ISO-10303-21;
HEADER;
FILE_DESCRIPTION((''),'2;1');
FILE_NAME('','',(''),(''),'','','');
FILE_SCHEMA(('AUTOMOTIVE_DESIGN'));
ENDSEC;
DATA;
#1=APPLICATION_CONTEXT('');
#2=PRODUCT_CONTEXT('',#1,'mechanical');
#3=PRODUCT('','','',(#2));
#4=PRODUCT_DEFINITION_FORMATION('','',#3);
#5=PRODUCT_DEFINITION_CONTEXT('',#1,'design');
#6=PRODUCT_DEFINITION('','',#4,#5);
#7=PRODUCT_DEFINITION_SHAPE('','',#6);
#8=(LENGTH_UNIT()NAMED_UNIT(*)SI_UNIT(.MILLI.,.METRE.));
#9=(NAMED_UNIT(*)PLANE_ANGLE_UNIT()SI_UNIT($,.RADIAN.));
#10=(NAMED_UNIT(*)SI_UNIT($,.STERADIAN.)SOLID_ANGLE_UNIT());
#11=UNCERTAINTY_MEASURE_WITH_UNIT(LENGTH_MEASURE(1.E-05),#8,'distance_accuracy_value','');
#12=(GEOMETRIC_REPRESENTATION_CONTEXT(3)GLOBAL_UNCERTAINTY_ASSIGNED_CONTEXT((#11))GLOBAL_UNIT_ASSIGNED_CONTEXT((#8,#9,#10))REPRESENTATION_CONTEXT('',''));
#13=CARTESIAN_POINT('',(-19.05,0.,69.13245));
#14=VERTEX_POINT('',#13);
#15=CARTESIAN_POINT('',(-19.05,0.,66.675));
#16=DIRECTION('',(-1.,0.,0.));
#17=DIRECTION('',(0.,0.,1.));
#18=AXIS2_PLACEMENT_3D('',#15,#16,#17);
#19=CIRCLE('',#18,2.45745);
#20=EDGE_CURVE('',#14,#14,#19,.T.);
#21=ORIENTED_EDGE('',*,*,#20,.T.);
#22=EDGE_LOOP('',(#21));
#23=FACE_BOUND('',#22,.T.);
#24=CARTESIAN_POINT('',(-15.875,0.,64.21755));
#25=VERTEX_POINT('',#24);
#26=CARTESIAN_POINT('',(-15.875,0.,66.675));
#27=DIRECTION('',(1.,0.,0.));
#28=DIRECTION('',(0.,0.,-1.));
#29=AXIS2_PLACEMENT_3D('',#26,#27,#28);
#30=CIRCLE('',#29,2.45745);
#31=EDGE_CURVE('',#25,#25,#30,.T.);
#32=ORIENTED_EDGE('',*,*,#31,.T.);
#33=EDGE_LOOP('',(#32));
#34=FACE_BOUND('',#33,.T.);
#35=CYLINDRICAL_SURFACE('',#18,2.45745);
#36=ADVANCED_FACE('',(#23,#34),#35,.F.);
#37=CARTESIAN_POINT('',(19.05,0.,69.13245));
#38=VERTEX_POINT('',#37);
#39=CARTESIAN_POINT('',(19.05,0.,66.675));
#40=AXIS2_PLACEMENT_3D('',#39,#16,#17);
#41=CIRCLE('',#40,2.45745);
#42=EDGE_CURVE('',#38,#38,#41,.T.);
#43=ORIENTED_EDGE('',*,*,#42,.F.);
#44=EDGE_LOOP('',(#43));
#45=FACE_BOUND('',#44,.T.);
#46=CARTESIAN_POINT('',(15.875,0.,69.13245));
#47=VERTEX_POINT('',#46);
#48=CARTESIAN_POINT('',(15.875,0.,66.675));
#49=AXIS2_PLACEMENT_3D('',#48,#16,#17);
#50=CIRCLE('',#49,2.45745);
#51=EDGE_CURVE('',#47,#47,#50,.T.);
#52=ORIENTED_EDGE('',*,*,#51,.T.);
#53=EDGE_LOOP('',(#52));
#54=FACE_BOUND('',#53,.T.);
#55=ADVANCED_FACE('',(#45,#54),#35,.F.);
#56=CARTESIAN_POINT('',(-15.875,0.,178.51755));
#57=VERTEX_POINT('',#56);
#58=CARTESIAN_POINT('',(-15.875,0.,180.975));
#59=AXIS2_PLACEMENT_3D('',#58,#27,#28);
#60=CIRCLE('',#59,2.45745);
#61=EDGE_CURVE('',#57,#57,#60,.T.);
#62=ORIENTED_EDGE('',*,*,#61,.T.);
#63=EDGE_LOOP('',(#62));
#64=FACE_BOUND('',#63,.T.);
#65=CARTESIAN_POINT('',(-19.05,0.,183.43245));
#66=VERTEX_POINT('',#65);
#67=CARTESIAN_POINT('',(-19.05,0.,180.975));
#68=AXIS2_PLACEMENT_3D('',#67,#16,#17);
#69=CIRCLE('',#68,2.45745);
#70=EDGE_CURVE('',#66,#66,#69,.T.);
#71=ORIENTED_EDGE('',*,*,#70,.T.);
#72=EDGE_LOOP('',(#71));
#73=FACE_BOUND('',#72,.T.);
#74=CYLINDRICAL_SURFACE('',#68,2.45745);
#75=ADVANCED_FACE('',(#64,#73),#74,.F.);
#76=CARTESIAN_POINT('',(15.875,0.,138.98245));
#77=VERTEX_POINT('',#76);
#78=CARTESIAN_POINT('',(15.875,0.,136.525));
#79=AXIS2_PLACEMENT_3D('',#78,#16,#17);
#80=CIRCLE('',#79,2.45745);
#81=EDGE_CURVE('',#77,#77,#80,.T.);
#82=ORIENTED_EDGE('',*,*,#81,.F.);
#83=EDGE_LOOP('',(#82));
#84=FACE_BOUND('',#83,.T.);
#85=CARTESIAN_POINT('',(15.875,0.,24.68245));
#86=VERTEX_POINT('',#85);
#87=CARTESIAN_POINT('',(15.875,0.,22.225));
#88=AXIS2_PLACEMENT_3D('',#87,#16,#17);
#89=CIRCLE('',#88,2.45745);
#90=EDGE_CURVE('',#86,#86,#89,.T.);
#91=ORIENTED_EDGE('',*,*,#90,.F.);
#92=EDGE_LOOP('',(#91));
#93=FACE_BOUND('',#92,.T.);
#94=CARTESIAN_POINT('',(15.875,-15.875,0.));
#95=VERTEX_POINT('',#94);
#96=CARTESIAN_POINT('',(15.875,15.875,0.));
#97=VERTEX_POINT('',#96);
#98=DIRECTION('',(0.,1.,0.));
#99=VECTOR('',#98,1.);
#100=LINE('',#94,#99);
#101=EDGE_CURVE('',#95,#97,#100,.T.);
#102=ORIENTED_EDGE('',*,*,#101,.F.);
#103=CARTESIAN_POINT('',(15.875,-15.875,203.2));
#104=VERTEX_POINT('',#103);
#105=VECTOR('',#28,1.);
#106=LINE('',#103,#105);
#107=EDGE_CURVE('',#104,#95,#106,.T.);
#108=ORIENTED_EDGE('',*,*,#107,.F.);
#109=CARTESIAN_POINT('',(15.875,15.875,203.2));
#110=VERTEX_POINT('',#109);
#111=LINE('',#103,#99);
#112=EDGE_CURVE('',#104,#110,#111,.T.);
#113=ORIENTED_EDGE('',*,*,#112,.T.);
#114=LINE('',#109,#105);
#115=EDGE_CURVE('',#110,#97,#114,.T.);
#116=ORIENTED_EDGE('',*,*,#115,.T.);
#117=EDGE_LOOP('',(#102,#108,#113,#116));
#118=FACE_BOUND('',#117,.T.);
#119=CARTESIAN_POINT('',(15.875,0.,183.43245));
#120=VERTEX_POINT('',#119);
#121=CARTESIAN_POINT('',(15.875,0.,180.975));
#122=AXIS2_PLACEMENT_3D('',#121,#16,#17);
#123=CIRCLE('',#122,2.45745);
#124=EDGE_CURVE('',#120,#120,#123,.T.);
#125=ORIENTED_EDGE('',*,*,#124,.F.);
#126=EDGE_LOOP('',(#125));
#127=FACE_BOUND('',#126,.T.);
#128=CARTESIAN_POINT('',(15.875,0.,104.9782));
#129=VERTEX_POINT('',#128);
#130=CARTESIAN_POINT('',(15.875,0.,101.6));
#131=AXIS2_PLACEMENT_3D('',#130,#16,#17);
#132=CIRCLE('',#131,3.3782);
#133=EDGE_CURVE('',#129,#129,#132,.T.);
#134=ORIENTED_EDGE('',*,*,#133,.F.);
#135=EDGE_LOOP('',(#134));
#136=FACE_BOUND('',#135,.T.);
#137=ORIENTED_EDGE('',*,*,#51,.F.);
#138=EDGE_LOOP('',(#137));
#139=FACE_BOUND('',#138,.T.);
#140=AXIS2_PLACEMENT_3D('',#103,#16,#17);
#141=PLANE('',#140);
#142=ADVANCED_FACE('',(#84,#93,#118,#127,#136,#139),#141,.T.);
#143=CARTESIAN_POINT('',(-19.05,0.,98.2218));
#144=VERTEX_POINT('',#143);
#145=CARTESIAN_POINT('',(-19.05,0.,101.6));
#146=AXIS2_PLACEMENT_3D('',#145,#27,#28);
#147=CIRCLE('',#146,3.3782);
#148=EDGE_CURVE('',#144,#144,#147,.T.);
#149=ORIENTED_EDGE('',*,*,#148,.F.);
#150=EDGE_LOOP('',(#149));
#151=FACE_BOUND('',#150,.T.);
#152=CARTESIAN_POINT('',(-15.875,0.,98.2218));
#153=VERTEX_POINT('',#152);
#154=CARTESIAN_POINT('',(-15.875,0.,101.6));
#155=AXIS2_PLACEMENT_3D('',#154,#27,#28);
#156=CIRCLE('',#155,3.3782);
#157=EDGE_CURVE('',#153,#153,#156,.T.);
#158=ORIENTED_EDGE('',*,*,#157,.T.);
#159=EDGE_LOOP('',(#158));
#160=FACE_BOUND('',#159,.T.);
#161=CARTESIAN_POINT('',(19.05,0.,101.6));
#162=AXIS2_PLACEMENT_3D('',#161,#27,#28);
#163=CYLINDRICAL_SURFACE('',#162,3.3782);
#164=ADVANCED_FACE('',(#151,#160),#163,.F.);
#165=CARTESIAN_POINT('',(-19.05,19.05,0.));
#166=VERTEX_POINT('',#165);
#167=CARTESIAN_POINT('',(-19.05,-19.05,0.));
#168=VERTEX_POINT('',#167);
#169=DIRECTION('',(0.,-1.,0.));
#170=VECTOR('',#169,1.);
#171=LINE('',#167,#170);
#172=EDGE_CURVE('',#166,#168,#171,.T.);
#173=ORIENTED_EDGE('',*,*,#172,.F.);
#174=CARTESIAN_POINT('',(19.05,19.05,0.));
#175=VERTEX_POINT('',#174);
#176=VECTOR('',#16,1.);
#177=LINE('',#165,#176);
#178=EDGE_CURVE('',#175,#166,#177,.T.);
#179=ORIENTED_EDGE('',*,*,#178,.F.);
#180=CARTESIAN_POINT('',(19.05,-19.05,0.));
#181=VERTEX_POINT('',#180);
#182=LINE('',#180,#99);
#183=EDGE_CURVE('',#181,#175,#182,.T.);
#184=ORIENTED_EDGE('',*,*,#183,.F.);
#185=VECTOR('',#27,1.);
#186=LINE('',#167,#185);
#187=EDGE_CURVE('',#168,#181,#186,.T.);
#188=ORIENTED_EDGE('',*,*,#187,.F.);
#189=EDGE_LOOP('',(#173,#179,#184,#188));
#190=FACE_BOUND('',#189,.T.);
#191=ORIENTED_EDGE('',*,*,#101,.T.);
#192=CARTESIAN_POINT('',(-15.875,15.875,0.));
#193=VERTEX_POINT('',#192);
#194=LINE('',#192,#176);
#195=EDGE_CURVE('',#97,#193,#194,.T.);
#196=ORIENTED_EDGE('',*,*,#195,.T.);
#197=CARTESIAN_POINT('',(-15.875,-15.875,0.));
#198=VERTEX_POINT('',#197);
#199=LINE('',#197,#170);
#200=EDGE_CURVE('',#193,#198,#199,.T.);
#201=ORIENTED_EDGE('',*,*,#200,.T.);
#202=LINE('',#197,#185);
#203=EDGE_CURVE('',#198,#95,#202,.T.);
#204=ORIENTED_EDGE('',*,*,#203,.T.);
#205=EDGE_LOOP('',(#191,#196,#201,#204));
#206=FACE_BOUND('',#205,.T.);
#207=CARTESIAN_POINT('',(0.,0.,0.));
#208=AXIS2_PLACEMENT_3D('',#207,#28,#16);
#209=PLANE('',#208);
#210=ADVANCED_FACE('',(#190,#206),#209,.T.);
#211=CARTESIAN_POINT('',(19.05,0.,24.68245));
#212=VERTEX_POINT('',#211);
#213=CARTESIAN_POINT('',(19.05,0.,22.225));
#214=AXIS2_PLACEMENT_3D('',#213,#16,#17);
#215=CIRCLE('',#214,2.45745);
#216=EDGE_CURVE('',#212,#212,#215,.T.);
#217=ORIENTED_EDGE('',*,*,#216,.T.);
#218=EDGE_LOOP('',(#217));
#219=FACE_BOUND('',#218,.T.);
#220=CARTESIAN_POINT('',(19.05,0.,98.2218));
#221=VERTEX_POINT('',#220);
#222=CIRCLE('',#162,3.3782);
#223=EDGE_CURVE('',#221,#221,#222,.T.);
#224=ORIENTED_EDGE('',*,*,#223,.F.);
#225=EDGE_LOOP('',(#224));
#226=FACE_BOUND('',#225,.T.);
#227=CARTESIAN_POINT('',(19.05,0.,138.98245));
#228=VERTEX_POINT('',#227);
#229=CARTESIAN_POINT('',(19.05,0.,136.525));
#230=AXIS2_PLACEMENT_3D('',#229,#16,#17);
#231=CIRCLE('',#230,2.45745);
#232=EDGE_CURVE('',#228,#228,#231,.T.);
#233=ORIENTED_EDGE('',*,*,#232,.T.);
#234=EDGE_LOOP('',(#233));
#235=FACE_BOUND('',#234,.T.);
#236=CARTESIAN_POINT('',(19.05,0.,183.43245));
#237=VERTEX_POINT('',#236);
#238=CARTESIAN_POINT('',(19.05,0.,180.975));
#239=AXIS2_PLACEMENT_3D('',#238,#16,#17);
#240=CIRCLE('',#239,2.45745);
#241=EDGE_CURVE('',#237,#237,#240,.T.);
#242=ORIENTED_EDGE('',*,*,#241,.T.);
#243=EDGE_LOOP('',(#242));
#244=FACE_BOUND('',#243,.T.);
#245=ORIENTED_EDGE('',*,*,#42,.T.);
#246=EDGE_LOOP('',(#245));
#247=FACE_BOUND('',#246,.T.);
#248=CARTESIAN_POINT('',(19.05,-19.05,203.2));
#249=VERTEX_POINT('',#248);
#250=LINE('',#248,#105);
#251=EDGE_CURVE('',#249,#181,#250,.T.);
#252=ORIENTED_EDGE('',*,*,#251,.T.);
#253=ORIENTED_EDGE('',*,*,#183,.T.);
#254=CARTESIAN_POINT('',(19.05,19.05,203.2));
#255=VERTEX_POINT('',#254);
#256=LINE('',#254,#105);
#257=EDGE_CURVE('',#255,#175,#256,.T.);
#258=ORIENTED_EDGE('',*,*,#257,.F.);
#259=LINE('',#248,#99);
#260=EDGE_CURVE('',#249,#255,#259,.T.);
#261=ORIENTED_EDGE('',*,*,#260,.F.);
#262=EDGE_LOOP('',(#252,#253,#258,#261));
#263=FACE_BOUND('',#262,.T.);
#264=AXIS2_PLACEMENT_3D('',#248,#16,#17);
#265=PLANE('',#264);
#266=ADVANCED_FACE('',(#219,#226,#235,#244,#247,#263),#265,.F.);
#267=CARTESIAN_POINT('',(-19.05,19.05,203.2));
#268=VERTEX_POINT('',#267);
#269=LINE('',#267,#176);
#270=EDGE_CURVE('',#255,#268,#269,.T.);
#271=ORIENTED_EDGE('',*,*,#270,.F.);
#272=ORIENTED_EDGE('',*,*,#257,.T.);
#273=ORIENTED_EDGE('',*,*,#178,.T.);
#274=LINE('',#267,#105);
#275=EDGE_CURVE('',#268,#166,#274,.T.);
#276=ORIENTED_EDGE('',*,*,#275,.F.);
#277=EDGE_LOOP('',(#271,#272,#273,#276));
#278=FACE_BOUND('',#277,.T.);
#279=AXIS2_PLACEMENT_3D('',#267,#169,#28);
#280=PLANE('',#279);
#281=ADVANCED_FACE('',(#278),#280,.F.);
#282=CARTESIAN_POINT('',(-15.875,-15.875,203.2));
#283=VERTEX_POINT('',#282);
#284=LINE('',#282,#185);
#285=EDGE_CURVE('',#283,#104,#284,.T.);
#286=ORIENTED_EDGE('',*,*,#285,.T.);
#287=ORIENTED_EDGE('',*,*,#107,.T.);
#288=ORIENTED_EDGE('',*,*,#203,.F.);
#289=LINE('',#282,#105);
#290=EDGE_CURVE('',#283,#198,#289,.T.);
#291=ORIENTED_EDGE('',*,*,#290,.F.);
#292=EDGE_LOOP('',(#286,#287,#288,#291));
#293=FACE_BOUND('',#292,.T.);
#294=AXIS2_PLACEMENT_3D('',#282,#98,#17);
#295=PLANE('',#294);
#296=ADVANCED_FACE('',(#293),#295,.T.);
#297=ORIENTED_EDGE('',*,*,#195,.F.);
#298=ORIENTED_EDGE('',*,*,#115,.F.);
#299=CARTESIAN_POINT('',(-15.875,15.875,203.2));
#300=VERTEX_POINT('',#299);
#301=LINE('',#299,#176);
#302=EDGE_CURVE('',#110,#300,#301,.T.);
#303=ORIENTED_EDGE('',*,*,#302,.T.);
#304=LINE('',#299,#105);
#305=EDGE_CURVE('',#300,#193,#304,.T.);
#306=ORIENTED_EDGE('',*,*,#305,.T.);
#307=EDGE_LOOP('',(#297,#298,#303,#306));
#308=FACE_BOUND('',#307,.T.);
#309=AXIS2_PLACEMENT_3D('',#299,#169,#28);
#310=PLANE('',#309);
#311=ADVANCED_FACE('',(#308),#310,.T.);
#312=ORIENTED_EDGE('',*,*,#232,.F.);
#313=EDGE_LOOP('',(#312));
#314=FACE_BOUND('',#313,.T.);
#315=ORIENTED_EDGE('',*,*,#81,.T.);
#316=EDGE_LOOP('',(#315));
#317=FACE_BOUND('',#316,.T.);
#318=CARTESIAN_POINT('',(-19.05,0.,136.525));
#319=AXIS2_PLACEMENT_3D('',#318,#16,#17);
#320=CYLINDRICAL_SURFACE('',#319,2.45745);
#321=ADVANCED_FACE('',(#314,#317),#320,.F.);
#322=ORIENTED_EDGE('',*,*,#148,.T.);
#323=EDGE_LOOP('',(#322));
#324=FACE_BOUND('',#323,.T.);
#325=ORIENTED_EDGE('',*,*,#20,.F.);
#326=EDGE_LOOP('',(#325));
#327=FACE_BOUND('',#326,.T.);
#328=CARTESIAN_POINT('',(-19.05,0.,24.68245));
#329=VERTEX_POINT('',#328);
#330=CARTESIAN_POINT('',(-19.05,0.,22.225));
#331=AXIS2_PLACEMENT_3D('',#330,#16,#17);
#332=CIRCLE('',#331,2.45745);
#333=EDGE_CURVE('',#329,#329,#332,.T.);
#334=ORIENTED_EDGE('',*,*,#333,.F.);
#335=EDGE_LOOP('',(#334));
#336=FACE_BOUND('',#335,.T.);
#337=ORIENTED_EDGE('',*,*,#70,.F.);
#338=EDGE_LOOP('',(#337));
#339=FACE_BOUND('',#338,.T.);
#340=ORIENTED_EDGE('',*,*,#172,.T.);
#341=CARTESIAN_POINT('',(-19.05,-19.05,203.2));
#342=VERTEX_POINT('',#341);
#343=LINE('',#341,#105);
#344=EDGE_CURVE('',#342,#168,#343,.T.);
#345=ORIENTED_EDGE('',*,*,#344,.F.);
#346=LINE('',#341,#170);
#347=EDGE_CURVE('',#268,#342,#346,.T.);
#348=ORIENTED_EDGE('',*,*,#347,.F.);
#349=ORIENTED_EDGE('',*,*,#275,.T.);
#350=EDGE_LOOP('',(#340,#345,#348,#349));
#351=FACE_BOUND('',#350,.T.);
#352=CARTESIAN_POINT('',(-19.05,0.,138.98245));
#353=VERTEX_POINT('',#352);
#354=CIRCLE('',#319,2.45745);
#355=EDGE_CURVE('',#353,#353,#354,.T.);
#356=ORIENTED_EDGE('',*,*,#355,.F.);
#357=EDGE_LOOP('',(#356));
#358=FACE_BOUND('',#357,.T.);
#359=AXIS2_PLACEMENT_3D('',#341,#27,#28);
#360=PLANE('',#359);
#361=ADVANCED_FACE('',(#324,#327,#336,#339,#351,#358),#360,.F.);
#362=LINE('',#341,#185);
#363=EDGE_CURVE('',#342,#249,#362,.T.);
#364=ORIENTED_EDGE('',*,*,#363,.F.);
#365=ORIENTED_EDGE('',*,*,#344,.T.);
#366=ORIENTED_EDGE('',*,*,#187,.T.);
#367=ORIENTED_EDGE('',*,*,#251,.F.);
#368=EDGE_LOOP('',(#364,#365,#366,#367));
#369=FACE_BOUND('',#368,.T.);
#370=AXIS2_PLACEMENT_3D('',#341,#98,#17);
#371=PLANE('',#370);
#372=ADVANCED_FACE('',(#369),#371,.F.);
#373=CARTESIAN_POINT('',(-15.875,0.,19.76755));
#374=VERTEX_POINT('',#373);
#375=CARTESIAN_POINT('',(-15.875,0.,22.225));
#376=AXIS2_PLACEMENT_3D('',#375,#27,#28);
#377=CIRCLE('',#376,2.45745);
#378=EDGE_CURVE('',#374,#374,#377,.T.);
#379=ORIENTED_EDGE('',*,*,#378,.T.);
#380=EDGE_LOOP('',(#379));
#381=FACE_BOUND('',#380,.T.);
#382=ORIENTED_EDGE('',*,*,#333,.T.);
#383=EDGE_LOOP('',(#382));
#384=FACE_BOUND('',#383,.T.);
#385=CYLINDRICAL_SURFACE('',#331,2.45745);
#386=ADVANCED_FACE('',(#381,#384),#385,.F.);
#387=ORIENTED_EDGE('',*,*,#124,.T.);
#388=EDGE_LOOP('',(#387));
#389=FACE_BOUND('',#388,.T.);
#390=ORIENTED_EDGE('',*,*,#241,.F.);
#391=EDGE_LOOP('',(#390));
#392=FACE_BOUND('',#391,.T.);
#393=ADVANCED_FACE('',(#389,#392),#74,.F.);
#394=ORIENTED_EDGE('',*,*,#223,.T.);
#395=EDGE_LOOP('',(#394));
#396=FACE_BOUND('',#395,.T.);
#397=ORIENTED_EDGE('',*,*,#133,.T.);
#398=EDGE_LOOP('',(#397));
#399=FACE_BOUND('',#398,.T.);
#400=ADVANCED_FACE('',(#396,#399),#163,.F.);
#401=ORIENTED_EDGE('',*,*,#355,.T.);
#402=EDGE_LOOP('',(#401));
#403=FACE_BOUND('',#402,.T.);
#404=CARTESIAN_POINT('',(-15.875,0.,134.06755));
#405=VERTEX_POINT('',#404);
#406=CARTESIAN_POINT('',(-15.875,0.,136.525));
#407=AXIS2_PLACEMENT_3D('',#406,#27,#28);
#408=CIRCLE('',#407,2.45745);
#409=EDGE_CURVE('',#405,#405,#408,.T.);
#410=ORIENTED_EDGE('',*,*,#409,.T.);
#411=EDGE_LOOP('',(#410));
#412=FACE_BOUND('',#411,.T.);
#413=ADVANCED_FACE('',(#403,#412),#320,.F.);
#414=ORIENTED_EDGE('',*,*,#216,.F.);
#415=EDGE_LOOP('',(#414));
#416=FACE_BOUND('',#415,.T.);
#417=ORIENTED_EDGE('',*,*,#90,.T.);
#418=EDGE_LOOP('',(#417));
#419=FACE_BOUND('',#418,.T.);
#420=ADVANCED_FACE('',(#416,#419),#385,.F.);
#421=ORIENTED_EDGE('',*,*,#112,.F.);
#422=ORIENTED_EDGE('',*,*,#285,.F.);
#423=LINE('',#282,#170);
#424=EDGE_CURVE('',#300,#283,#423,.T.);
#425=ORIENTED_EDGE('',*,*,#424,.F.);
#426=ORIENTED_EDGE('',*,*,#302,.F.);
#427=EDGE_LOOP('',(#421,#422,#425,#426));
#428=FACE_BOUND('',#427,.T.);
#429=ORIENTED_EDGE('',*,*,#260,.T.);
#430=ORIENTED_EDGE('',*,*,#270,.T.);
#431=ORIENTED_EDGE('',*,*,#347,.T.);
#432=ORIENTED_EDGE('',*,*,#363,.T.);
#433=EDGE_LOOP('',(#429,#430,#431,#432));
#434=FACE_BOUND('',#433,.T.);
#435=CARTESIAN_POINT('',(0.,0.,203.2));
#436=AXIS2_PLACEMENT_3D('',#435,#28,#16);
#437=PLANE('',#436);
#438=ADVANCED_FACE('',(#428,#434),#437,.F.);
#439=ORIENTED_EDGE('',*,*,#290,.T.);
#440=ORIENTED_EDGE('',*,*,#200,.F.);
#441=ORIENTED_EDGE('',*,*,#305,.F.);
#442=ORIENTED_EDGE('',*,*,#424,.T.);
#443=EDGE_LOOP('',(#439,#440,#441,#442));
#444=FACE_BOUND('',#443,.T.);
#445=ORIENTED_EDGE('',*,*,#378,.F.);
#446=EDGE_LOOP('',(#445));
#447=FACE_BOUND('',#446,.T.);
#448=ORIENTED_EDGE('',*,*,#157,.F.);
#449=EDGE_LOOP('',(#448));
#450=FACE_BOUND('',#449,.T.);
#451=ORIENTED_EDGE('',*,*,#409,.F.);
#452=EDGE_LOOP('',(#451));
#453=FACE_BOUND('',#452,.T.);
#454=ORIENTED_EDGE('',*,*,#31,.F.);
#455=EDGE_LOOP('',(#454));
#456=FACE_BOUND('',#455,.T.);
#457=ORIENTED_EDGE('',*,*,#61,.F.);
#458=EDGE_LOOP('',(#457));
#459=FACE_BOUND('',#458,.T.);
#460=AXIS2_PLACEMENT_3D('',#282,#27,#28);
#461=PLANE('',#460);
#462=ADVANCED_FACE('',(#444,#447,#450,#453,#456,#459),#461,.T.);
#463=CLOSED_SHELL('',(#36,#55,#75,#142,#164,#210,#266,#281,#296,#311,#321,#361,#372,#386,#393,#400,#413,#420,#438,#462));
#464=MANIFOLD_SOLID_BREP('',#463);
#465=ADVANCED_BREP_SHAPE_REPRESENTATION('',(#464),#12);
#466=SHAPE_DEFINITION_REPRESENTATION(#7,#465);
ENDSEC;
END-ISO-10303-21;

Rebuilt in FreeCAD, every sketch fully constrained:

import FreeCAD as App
import Part
import Sketcher
Q = App.Units.Quantity


def add_polygon(sketch, points):
    """Adds a closed chain of lines whose ends are joined by coincident constraints."""
    first, n = sketch.GeometryCount, len(points)
    for a, b in zip(points, points[1:] + points[:1]):
        sketch.addGeometry(Part.LineSegment(App.Vector(*a, 0), App.Vector(*b, 0)), False)
    for i in range(n):
        sketch.addConstraint(Sketcher.Constraint("Coincident", first + i, 2, first + (i + 1) % n, 1))

doc = App.newDocument("Part")
body = doc.addObject("PartDesign::Body", "Body")

# Sketch on XY plane
sketch1 = body.newObject("Sketcher::SketchObject", "Sketch")
sketch1.AttachmentSupport = (doc.getObject("XY_Plane"), [""])
sketch1.MapMode = "FlatFace"
add_polygon(sketch1, [(-19.05, 19.05), (-19.05, -19.05), (19.05, -19.05), (19.05, 19.05)])  # lines 0-3
add_polygon(sketch1, [(15.875, -15.875), (-15.875, -15.875), (-15.875, 15.875), (15.875, 15.875)])  # lines 4-7
sketch1.addConstraint([
    Sketcher.Constraint("Vertical", 0),
    Sketcher.Constraint("Horizontal", 1),
    Sketcher.Constraint("Vertical", 2),
    Sketcher.Constraint("Horizontal", 3),
    Sketcher.Constraint("Horizontal", 4),
    Sketcher.Constraint("Vertical", 5),
    Sketcher.Constraint("Horizontal", 6),
    Sketcher.Constraint("Vertical", 7),
    Sketcher.Constraint("Symmetric", 0, 2, 2, 2, -1, 1),
    Sketcher.Constraint("Symmetric", 4, 2, 6, 2, -1, 1),
    Sketcher.Constraint("Equal", 3, 0),
    Sketcher.Constraint("Equal", 6, 5),
    Sketcher.Constraint("DistanceX", 1, 1, 1, 2, Q("1.5 in")),
    Sketcher.Constraint("DistanceX", 4, 2, 4, 1, Q("1.25 in")),
])
pad1 = body.newObject("PartDesign::Pad", "Pad")
pad1.Profile = sketch1
pad1.Length = Q("8 in")

# Sketch on YZ plane
sketch2 = body.newObject("Sketcher::SketchObject", "Sketch001")
sketch2.AttachmentSupport = (doc.getObject("YZ_Plane"), [""])
sketch2.MapMode = "FlatFace"
sketch2.AttachmentOffset = App.Placement(App.Vector(0, 0, -0.75 * 25.4), App.Rotation())
sketch2.addGeometry([
    Part.Circle(App.Vector(0, 22.225, 0), App.Vector(0, 0, 1), 2.45745),
    Part.Circle(App.Vector(0, 66.675, 0), App.Vector(0, 0, 1), 2.45745),
    Part.Circle(App.Vector(0, 136.525, 0), App.Vector(0, 0, 1), 2.45745),
    Part.Circle(App.Vector(0, 180.975, 0), App.Vector(0, 0, 1), 2.45745),
], False)
sketch2.addConstraint([
    Sketcher.Constraint("Equal", 0, 1),
    Sketcher.Constraint("Equal", 1, 2),
    Sketcher.Constraint("Equal", 2, 3),
    Sketcher.Constraint("PointOnObject", 0, 3, -2),
    Sketcher.Constraint("PointOnObject", 1, 3, -2),
    Sketcher.Constraint("PointOnObject", 2, 3, -2),
    Sketcher.Constraint("PointOnObject", 3, 3, -2),
    Sketcher.Constraint("Diameter", 0, Q("0.1935 in")),
    Sketcher.Constraint("DistanceY", 0, 3, 2, 3, Q("4.5 in")),
    Sketcher.Constraint("DistanceY", 1, 3, 3, 3, Q("4.5 in")),
    Sketcher.Constraint("DistanceY", 0, 3, 1, 3, Q("1.75 in")),
    Sketcher.Constraint("DistanceY", -1, 1, 0, 3, Q("0.875 in")),
])
doc.recompute()
hole = body.newObject("PartDesign::Hole", "Hole")
hole.Profile = sketch2
hole.ThreadType = "None"
hole.Diameter = Q("0.1935 in")
hole.DepthType = "ThroughAll"
hole.Reversed = True

# Sketch on YZ plane
sketch3 = body.newObject("Sketcher::SketchObject", "Sketch002")
sketch3.AttachmentSupport = (doc.getObject("YZ_Plane"), [""])
sketch3.MapMode = "FlatFace"
sketch3.AttachmentOffset = App.Placement(App.Vector(0, 0, 0.75 * 25.4), App.Rotation())
sketch3.addGeometry(Part.Circle(App.Vector(0, 101.6, 0), App.Vector(0, 0, 1), 3.3782), False)
sketch3.addConstraint([
    Sketcher.Constraint("PointOnObject", 0, 3, -2),
    Sketcher.Constraint("Diameter", 0, Q("0.266 in")),
    Sketcher.Constraint("DistanceY", -1, 1, 0, 3, Q("4 in")),
])
doc.recompute()
hole2 = body.newObject("PartDesign::Hole", "Hole001")
hole2.Profile = sketch3
hole2.ThreadType = "None"
hole2.Diameter = Q("0.266 in")
hole2.DepthType = "ThroughAll"

doc.recompute()
